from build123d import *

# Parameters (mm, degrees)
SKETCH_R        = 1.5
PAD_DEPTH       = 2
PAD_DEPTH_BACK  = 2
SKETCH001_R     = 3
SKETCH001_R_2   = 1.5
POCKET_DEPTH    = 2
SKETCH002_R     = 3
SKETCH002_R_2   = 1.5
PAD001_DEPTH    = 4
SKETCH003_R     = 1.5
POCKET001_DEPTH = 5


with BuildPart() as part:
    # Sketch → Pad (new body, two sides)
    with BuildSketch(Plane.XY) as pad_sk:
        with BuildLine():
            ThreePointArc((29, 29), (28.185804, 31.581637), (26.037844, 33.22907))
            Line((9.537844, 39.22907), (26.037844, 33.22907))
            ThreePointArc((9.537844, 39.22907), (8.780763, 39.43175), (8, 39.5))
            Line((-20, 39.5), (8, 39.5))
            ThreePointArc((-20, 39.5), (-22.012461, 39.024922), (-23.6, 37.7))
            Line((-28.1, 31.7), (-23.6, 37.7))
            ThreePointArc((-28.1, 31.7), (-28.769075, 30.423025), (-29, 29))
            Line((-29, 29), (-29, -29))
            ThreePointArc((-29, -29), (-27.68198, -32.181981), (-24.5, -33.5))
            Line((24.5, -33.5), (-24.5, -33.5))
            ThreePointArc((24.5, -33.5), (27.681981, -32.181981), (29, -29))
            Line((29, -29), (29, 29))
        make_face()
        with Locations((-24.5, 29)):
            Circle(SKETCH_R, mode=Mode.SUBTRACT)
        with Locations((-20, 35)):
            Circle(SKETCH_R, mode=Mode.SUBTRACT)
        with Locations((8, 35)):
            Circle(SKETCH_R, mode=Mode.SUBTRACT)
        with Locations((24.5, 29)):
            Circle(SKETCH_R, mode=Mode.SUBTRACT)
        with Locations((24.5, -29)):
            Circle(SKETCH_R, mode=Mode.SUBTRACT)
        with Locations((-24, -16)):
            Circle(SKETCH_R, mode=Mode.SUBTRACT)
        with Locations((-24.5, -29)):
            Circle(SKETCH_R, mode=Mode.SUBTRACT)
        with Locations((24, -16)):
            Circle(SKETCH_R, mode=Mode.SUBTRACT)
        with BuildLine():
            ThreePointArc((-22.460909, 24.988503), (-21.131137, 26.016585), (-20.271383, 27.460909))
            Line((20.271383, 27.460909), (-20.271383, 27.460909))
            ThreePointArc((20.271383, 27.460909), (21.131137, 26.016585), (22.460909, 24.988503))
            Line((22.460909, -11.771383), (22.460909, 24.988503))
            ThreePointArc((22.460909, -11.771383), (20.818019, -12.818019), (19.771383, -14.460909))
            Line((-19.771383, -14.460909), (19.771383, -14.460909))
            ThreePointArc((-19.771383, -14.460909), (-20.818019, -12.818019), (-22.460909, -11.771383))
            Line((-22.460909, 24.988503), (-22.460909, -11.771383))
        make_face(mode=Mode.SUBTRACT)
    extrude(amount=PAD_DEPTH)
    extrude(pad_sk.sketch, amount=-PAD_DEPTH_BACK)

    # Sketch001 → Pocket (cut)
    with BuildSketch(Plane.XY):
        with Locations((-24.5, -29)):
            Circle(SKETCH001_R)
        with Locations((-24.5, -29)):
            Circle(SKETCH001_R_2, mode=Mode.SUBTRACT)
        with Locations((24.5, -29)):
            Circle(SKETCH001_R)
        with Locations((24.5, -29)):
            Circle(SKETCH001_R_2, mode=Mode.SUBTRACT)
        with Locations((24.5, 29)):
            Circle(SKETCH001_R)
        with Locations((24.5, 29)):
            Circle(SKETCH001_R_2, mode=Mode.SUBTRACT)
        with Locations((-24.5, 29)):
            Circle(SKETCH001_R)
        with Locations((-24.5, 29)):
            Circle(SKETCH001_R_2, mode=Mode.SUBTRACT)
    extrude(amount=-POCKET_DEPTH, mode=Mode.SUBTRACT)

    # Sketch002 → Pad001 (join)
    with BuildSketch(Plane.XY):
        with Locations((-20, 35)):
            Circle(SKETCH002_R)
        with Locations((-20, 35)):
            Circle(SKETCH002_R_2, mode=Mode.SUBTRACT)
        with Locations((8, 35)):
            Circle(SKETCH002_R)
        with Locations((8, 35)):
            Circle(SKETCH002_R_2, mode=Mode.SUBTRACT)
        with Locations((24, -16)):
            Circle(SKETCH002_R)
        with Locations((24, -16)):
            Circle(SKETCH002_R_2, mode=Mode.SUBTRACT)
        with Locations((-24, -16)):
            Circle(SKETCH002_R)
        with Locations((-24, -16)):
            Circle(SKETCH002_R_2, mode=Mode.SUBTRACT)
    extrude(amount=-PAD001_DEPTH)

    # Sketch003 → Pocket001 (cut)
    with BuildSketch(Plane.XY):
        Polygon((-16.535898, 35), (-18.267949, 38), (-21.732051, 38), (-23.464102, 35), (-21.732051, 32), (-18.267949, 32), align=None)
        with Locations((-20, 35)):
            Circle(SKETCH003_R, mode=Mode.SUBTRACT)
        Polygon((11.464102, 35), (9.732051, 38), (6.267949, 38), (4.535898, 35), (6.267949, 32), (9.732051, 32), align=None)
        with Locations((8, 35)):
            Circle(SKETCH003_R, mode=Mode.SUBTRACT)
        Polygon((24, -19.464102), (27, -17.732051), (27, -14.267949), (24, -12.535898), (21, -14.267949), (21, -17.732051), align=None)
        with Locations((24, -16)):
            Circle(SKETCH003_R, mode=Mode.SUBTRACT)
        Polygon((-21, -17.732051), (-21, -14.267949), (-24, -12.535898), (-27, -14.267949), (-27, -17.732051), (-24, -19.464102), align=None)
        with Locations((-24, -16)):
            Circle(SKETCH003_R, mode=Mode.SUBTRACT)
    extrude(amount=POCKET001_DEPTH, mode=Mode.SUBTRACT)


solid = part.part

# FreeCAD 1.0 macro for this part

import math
import FreeCAD as App
import Part
import Sketcher

V = App.Vector
Q = App.Units.Quantity

doc = App.newDocument("Part")
params = doc.addObject("Spreadsheet::Sheet", "Params")
for row, (alias, value) in enumerate([
    ("sketch1_diameter", "3 mm"),
    ("sketch1_radius", "4.499999 mm"),
    ("sketch1_width", "28 mm"),
    ("sketch1_width2", "49 mm"),
    ("sketch1_height", "58 mm"),
    ("pad1_length", "2 mm"),
    ("pad1_length2", "2 mm"),
    ("sketch2_diameter", "6 mm"),
    ("sketch2_diameter2", "3 mm"),
    ("pocket1_length", "2 mm"),
    ("sketch3_diameter", "6 mm"),
    ("sketch3_diameter2", "3 mm"),
    ("pad2_length", "4 mm"),
    ("sketch4_diameter", "3 mm"),
    ("pocket2_length", "5 mm"),
], start=1):
    params.set(f"A{row}", alias)
    params.set(f"B{row}", "=" + value)
    params.setAlias(f"B{row}", alias)

body = doc.addObject("PartDesign::Body", "Body")

sketch1 = doc.addObject("Sketcher::SketchObject", "Sketch")
body.addObject(sketch1)
sketch1.AttachmentSupport = (doc.XY_Plane, [""])
sketch1.MapMode = "FlatFace"
sketch1.addGeometry([
    Part.ArcOfCircle(Part.Circle(V(24.5, 29, 0), V(0, 0, 1), 4.5), math.radians(0), math.radians(70)),
    Part.LineSegment(V(26, 33.2, 0), V(9.5, 39.2, 0)),
    Part.ArcOfCircle(Part.Circle(V(8, 35, 0), V(0, 0, 1), 4.5), math.radians(70.02), math.radians(90)),
    Part.LineSegment(V(8, 39.5, 0), V(-20, 39.5, 0)),
    Part.ArcOfCircle(Part.Circle(V(-20, 35, 0), V(0, 0, 1), 4.5), math.radians(90), math.radians(143)),
    Part.LineSegment(V(-23.6, 37.7, 0), V(-28.1, 31.7, 0)),
    Part.ArcOfCircle(Part.Circle(V(-24.5, 29, 0), V(0, 0, 1), 4.5), math.radians(143), math.radians(180)),
    Part.LineSegment(V(-29, 29, 0), V(-29, -29, 0)),
    Part.ArcOfCircle(Part.Circle(V(-24.5, -29, 0), V(0, 0, 1), 4.5), math.radians(-180), math.radians(-90)),
    Part.LineSegment(V(-24.5, -33.5, 0), V(24.5, -33.5, 0)),
    Part.ArcOfCircle(Part.Circle(V(24.5, -29, 0), V(0, 0, 1), 4.5), math.radians(-90), math.radians(0)),
    Part.LineSegment(V(29, -29, 0), V(29, 29, 0)),
    Part.Circle(V(-24.5, -29, 0), V(0, 0, 1), 1.5),
    Part.Circle(V(-24, -16, 0), V(0, 0, 1), 1.5),
    Part.Circle(V(24.5, -29, 0), V(0, 0, 1), 1.5),
    Part.Circle(V(24, -16, 0), V(0, 0, 1), 1.5),
    Part.Circle(V(-24.5, 29, 0), V(0, 0, 1), 1.5),
    Part.Circle(V(-20, 35, 0), V(0, 0, 1), 1.5),
    Part.LineSegment(V(-22.5, -11.8, 0), V(-22.5, 25, 0)),
    Part.ArcOfCircle(Part.Circle(V(-24.5, 29, 0), V(0, 0, 1), 4.5), math.radians(-63), math.radians(-20)),
    Part.LineSegment(V(-20.3, 27.5, 0), V(20.3, 27.5, 0)),
    Part.ArcOfCircle(Part.Circle(V(24.5, 29, 0), V(0, 0, 1), 4.5), math.radians(-160), math.radians(-117)),
    Part.LineSegment(V(22.5, 25, 0), V(22.5, -11.8, 0)),
    Part.ArcOfCircle(Part.Circle(V(24, -16, 0), V(0, 0, 1), 4.5), math.radians(110), math.radians(160)),
    Part.LineSegment(V(19.8, -14.5, 0), V(-19.8, -14.5, 0)),
    Part.ArcOfCircle(Part.Circle(V(-24, -16, 0), V(0, 0, 1), 4.5), math.radians(20), math.radians(70)),
    Part.Circle(V(8, 35, 0), V(0, 0, 1), 1.5),
    Part.Circle(V(24.5, 29, 0), V(0, 0, 1), 1.5),
], False)
sketch1.addConstraint([
    Sketcher.Constraint("Tangent", 0, 2, 1, 1),
    Sketcher.Constraint("Tangent", 1, 2, 2, 1),
    Sketcher.Constraint("Tangent", 2, 2, 3, 1),
    Sketcher.Constraint("Tangent", 3, 2, 4, 1),
    Sketcher.Constraint("Tangent", 4, 2, 5, 1),
    Sketcher.Constraint("Tangent", 5, 2, 6, 1),
    Sketcher.Constraint("Tangent", 6, 2, 7, 1),
    Sketcher.Constraint("Tangent", 7, 2, 8, 1),
    Sketcher.Constraint("Tangent", 8, 2, 9, 1),
    Sketcher.Constraint("Tangent", 9, 2, 10, 1),
    Sketcher.Constraint("Tangent", 10, 2, 11, 1),
    Sketcher.Constraint("Tangent", 11, 2, 0, 1),
    Sketcher.Constraint("Coincident", 18, 2, 19, 1),
    Sketcher.Constraint("Coincident", 19, 2, 20, 1),
    Sketcher.Constraint("Coincident", 20, 2, 21, 1),
    Sketcher.Constraint("Coincident", 21, 2, 22, 1),
    Sketcher.Constraint("Coincident", 22, 2, 23, 1),
    Sketcher.Constraint("Coincident", 23, 2, 24, 1),
    Sketcher.Constraint("Coincident", 24, 2, 25, 1),
    Sketcher.Constraint("Coincident", 25, 2, 18, 1),
    Sketcher.Constraint("Horizontal", 3),
    Sketcher.Constraint("Vertical", 7),
    Sketcher.Constraint("Horizontal", 9),
    Sketcher.Constraint("Vertical", 11),
    Sketcher.Constraint("Vertical", 18),
    Sketcher.Constraint("Horizontal", 20),
    Sketcher.Constraint("Vertical", 22),
    Sketcher.Constraint("Horizontal", 24),
    Sketcher.Constraint("Coincident", 12, 3, 8, 3),
    Sketcher.Constraint("Coincident", 14, 3, 10, 3),
    Sketcher.Constraint("Coincident", 16, 3, 6, 3),
    Sketcher.Constraint("Coincident", 17, 3, 4, 3),
    Sketcher.Constraint("Coincident", 19, 3, 6, 3),
    Sketcher.Constraint("Coincident", 21, 3, 0, 3),
    Sketcher.Constraint("Coincident", 23, 3, 15, 3),
    Sketcher.Constraint("Coincident", 25, 3, 13, 3),
    Sketcher.Constraint("Coincident", 26, 3, 2, 3),
    Sketcher.Constraint("Coincident", 27, 3, 0, 3),
    Sketcher.Constraint("Equal", 0, 2),
    Sketcher.Constraint("Equal", 2, 6),
    Sketcher.Constraint("Equal", 0, 8),
    Sketcher.Constraint("Equal", 8, 10),
    Sketcher.Constraint("Equal", 12, 13),
    Sketcher.Constraint("Equal", 13, 14),
    Sketcher.Constraint("Equal", 14, 15),
    Sketcher.Constraint("Equal", 15, 16),
    Sketcher.Constraint("Equal", 16, 17),
    Sketcher.Constraint("Equal", 10, 19),
    Sketcher.Constraint("Equal", 19, 21),
    Sketcher.Constraint("Equal", 21, 23),
    Sketcher.Constraint("Equal", 23, 25),
    Sketcher.Constraint("Equal", 17, 26),
    Sketcher.Constraint("Equal", 26, 27),
    Sketcher.Constraint("Symmetric", 0, 3, 8, 3, -1, 1),
    Sketcher.Constraint("Symmetric", 13, 3, 15, 3, -2),
    Sketcher.Constraint("Symmetric", 18, 2, 21, 2, -2),
    Sketcher.Constraint("Horizontal", 17, 3, 26, 3),
    Sketcher.Constraint("Diameter", 12, 3.0),
    Sketcher.Constraint("Radius", 0, 4.499999),
    Sketcher.Constraint("DistanceX", 3, 2, 3, 1, 28.0),
    Sketcher.Constraint("DistanceX", 9, 1, 9, 2, 49.0),
    Sketcher.Constraint("DistanceY", 7, 2, 7, 1, 58.0),
    Sketcher.Constraint("DistanceX", -1, 1, 2, 3, 8.0),
    Sketcher.Constraint("DistanceX", 13, 3, -1, 1, 24.0),
    Sketcher.Constraint("DistanceY", 13, 3, -1, 1, 16.0),
    Sketcher.Constraint("DistanceY", -1, 1, 17, 3, 35.0),
    Sketcher.Constraint("DistanceY", 18, 2, 6, 3, 4.011498),
    Sketcher.Constraint("DistanceX", 20, 1, 20, 2, 40.542766),
    Sketcher.Constraint("DistanceX", 24, 2, 24, 1, 39.542766),
])
sketch1.setExpression("Constraints[57]", "Params.sketch1_diameter")
sketch1.setExpression("Constraints[58]", "Params.sketch1_radius")
sketch1.setExpression("Constraints[59]", "Params.sketch1_width")
sketch1.setExpression("Constraints[60]", "Params.sketch1_width2")
sketch1.setExpression("Constraints[61]", "Params.sketch1_height")
pad1 = doc.addObject("PartDesign::Pad", "Pad")
body.addObject(pad1)
pad1.Profile = sketch1
pad1.Type = "TwoLengths"
pad1.setExpression("Length", "Params.pad1_length")
pad1.setExpression("Length2", "Params.pad1_length2")

sketch2 = doc.addObject("Sketcher::SketchObject", "Sketch001")
body.addObject(sketch2)
sketch2.AttachmentSupport = (doc.XY_Plane, [""])
sketch2.MapMode = "FlatFace"
sketch2.addGeometry([
    Part.Circle(V(-24.5, -29, 0), V(0, 0, 1), 3),
    Part.Circle(V(-24.5, -29, 0), V(0, 0, 1), 1.5),
    Part.Circle(V(24.5, -29, 0), V(0, 0, 1), 3),
    Part.Circle(V(24.5, -29, 0), V(0, 0, 1), 1.5),
    Part.Circle(V(24.5, 29, 0), V(0, 0, 1), 3),
    Part.Circle(V(24.5, 29, 0), V(0, 0, 1), 1.5),
    Part.Circle(V(-24.5, 29, 0), V(0, 0, 1), 3),
    Part.Circle(V(-24.5, 29, 0), V(0, 0, 1), 1.5),
], False)
sketch2.addConstraint([
    Sketcher.Constraint("Coincident", 1, 3, 0, 3),
    Sketcher.Constraint("Coincident", 3, 3, 2, 3),
    Sketcher.Constraint("Coincident", 5, 3, 4, 3),
    Sketcher.Constraint("Coincident", 7, 3, 6, 3),
    Sketcher.Constraint("Equal", 0, 2),
    Sketcher.Constraint("Equal", 1, 3),
    Sketcher.Constraint("Equal", 2, 4),
    Sketcher.Constraint("Equal", 3, 5),
    Sketcher.Constraint("Equal", 4, 6),
    Sketcher.Constraint("Equal", 5, 7),
    Sketcher.Constraint("Symmetric", 0, 3, 4, 3, -1, 1),
    Sketcher.Constraint("Symmetric", 2, 3, 6, 3, -1, 1),
    Sketcher.Constraint("Symmetric", 0, 3, 2, 3, -2),
    Sketcher.Constraint("Diameter", 0, 6.0),
    Sketcher.Constraint("Diameter", 1, 3.0),
    Sketcher.Constraint("DistanceY", 0, 3, -1, 1, 29.0),
    Sketcher.Constraint("DistanceX", 0, 3, 2, 3, 49.0),
])
sketch2.setExpression("Constraints[13]", "Params.sketch2_diameter")
sketch2.setExpression("Constraints[14]", "Params.sketch2_diameter2")
pocket1 = doc.addObject("PartDesign::Pocket", "Pocket")
body.addObject(pocket1)
pocket1.Profile = sketch2
pocket1.setExpression("Length", "Params.pocket1_length")

sketch3 = doc.addObject("Sketcher::SketchObject", "Sketch002")
body.addObject(sketch3)
sketch3.AttachmentSupport = (doc.XY_Plane, [""])
sketch3.MapMode = "FlatFace"
sketch3.addGeometry([
    Part.Circle(V(-20, 35, 0), V(0, 0, 1), 3),
    Part.Circle(V(-20, 35, 0), V(0, 0, 1), 1.5),
    Part.Circle(V(8, 35, 0), V(0, 0, 1), 3),
    Part.Circle(V(8, 35, 0), V(0, 0, 1), 1.5),
    Part.Circle(V(24, -16, 0), V(0, 0, 1), 3),
    Part.Circle(V(24, -16, 0), V(0, 0, 1), 1.5),
    Part.Circle(V(-24, -16, 0), V(0, 0, 1), 3),
    Part.Circle(V(-24, -16, 0), V(0, 0, 1), 1.5),
], False)
sketch3.addConstraint([
    Sketcher.Constraint("Coincident", 1, 3, 0, 3),
    Sketcher.Constraint("Coincident", 3, 3, 2, 3),
    Sketcher.Constraint("Coincident", 5, 3, 4, 3),
    Sketcher.Constraint("Coincident", 7, 3, 6, 3),
    Sketcher.Constraint("Equal", 0, 2),
    Sketcher.Constraint("Equal", 1, 3),
    Sketcher.Constraint("Equal", 2, 4),
    Sketcher.Constraint("Equal", 3, 5),
    Sketcher.Constraint("Equal", 4, 6),
    Sketcher.Constraint("Equal", 5, 7),
    Sketcher.Constraint("Symmetric", 4, 3, 6, 3, -2),
    Sketcher.Constraint("Horizontal", 1, 3, 2, 3),
    Sketcher.Constraint("Diameter", 0, 6.0),
    Sketcher.Constraint("Diameter", 1, 3.0),
    Sketcher.Constraint("DistanceX", 0, 3, -1, 1, 20.0),
    Sketcher.Constraint("DistanceY", -1, 1, 0, 3, 35.0),
    Sketcher.Constraint("DistanceX", -1, 1, 2, 3, 8.0),
    Sketcher.Constraint("DistanceX", -1, 1, 4, 3, 24.0),
    Sketcher.Constraint("DistanceY", 4, 3, -1, 1, 16.0),
])
sketch3.setExpression("Constraints[12]", "Params.sketch3_diameter")
sketch3.setExpression("Constraints[13]", "Params.sketch3_diameter2")
pad2 = doc.addObject("PartDesign::Pad", "Pad001")
body.addObject(pad2)
pad2.Profile = sketch3
pad2.setExpression("Length", "Params.pad2_length")
pad2.Reversed = True

sketch4 = doc.addObject("Sketcher::SketchObject", "Sketch003")
body.addObject(sketch4)
sketch4.AttachmentSupport = (doc.XY_Plane, [""])
sketch4.MapMode = "FlatFace"
sketch4.addGeometry([
    Part.LineSegment(V(-16.5, 35, 0), V(-18.3, 38, 0)),
    Part.LineSegment(V(-18.3, 38, 0), V(-21.7, 38, 0)),
    Part.LineSegment(V(-21.7, 38, 0), V(-23.5, 35, 0)),
    Part.LineSegment(V(-23.5, 35, 0), V(-21.7, 32, 0)),
    Part.LineSegment(V(-21.7, 32, 0), V(-18.3, 32, 0)),
    Part.LineSegment(V(-18.3, 32, 0), V(-16.5, 35, 0)),
    Part.Circle(V(-20, 35, 0), V(0, 0, 1), 1.5),
    Part.LineSegment(V(11.5, 35, 0), V(9.7, 38, 0)),
    Part.LineSegment(V(9.7, 38, 0), V(6.3, 38, 0)),
    Part.LineSegment(V(6.3, 38, 0), V(4.5, 35, 0)),
    Part.LineSegment(V(4.5, 35, 0), V(6.3, 32, 0)),
    Part.LineSegment(V(6.3, 32, 0), V(9.7, 32, 0)),
    Part.LineSegment(V(9.7, 32, 0), V(11.5, 35, 0)),
    Part.Circle(V(8, 35, 0), V(0, 0, 1), 1.5),
    Part.LineSegment(V(24, -19.5, 0), V(27, -17.7, 0)),
    Part.LineSegment(V(27, -17.7, 0), V(27, -14.3, 0)),
    Part.LineSegment(V(27, -14.3, 0), V(24, -12.5, 0)),
    Part.LineSegment(V(24, -12.5, 0), V(21, -14.3, 0)),
    Part.LineSegment(V(21, -14.3, 0), V(21, -17.7, 0)),
    Part.LineSegment(V(21, -17.7, 0), V(24, -19.5, 0)),
    Part.Circle(V(24, -16, 0), V(0, 0, 1), 1.5),
    Part.LineSegment(V(-21, -17.7, 0), V(-21, -14.3, 0)),
    Part.LineSegment(V(-21, -14.3, 0), V(-24, -12.5, 0)),
    Part.LineSegment(V(-24, -12.5, 0), V(-27, -14.3, 0)),
    Part.LineSegment(V(-27, -14.3, 0), V(-27, -17.7, 0)),
    Part.LineSegment(V(-27, -17.7, 0), V(-24, -19.5, 0)),
    Part.LineSegment(V(-24, -19.5, 0), V(-21, -17.7, 0)),
    Part.Circle(V(-24, -16, 0), V(0, 0, 1), 1.5),
], False)
sketch4.addConstraint([
    Sketcher.Constraint("Coincident", 0, 2, 1, 1),
    Sketcher.Constraint("Coincident", 1, 2, 2, 1),
    Sketcher.Constraint("Coincident", 2, 2, 3, 1),
    Sketcher.Constraint("Coincident", 3, 2, 4, 1),
    Sketcher.Constraint("Coincident", 4, 2, 5, 1),
    Sketcher.Constraint("Coincident", 5, 2, 0, 1),
    Sketcher.Constraint("Coincident", 7, 2, 8, 1),
    Sketcher.Constraint("Coincident", 8, 2, 9, 1),
    Sketcher.Constraint("Coincident", 9, 2, 10, 1),
    Sketcher.Constraint("Coincident", 10, 2, 11, 1),
    Sketcher.Constraint("Coincident", 11, 2, 12, 1),
    Sketcher.Constraint("Coincident", 12, 2, 7, 1),
    Sketcher.Constraint("Coincident", 14, 2, 15, 1),
    Sketcher.Constraint("Coincident", 15, 2, 16, 1),
    Sketcher.Constraint("Coincident", 16, 2, 17, 1),
    Sketcher.Constraint("Coincident", 17, 2, 18, 1),
    Sketcher.Constraint("Coincident", 18, 2, 19, 1),
    Sketcher.Constraint("Coincident", 19, 2, 14, 1),
    Sketcher.Constraint("Coincident", 21, 2, 22, 1),
    Sketcher.Constraint("Coincident", 22, 2, 23, 1),
    Sketcher.Constraint("Coincident", 23, 2, 24, 1),
    Sketcher.Constraint("Coincident", 24, 2, 25, 1),
    Sketcher.Constraint("Coincident", 25, 2, 26, 1),
    Sketcher.Constraint("Coincident", 26, 2, 21, 1),
    Sketcher.Constraint("Horizontal", 1),
    Sketcher.Constraint("Horizontal", 4),
    Sketcher.Constraint("Horizontal", 8),
    Sketcher.Constraint("Horizontal", 11),
    Sketcher.Constraint("Vertical", 15),
    Sketcher.Constraint("Vertical", 18),
    Sketcher.Constraint("Vertical", 21),
    Sketcher.Constraint("Vertical", 24),
    Sketcher.Constraint("Equal", 6, 13),
    Sketcher.Constraint("Equal", 13, 20),
    Sketcher.Constraint("Equal", 20, 27),
    Sketcher.Constraint("Symmetric", 20, 3, 27, 3, -2),
    Sketcher.Constraint("Symmetric", 17, 2, 21, 2, -2),
    Sketcher.Constraint("Symmetric", 16, 2, 22, 2, -2),
    Sketcher.Constraint("Symmetric", 15, 2, 23, 2, -2),
    Sketcher.Constraint("Symmetric", 19, 2, 25, 2, -2),
    Sketcher.Constraint("Parallel", 0, 3),
    Sketcher.Constraint("Parallel", 2, 5),
    Sketcher.Constraint("Parallel", 3, 7),
    Sketcher.Constraint("Parallel", 5, 9),
    Sketcher.Constraint("Parallel", 7, 10),
    Sketcher.Constraint("Parallel", 9, 12),
    Sketcher.Constraint("Perpendicular", 10, 14),
    Sketcher.Constraint("Perpendicular", 12, 16),
    Sketcher.Constraint("Parallel", 14, 17),
    Sketcher.Constraint("Parallel", 16, 19),
    Sketcher.Constraint("Parallel", 19, 22),
    Sketcher.Constraint("Parallel", 22, 25),
    Sketcher.Constraint("Parallel", 23, 26),
    Sketcher.Constraint("Horizontal", 6, 3, 13, 3),
    Sketcher.Constraint("Horizontal", 13, 3, 2, 2),
    Sketcher.Constraint("Horizontal", 2, 2, 5, 2),
    Sketcher.Constraint("Horizontal", 1, 2, 7, 2),
    Sketcher.Constraint("Horizontal", 5, 2, 9, 2),
    Sketcher.Constraint("Horizontal", 4, 2, 10, 2),
    Sketcher.Constraint("Horizontal", 9, 2, 12, 2),
    Sketcher.Constraint("Horizontal", 15, 2, 17, 2),
    Sketcher.Constraint("Horizontal", 14, 2, 18, 2),
    Sketcher.Constraint("Vertical", 1, 2, 3, 2),
    Sketcher.Constraint("Vertical", 20, 3, 16, 2),
    Sketcher.Constraint("Equal", 4, 8),
    Sketcher.Constraint("Equal", 11, 15),
    Sketcher.Constraint("Equal", 12, 14),
    Sketcher.Constraint("Diameter", 6, 3.0),
    Sketcher.Constraint("Angle", 0, Q("120.000003 deg")),
    Sketcher.Constraint("DistanceX", 6, 3, -1, 1, 20.0),
    Sketcher.Constraint("DistanceY", -1, 1, 6, 3, 35.0),
    Sketcher.Constraint("DistanceX", -1, 1, 13, 3, 8.0),
    Sketcher.Constraint("DistanceX", -1, 1, 20, 3, 24.0),
    Sketcher.Constraint("DistanceY", 20, 3, -1, 1, 16.0),
    Sketcher.Constraint("DistanceY", -1, 1, 0, 2, 38.0),
    Sketcher.Constraint("DistanceX", 0, 2, 7, 2, 28.0),
    Sketcher.Constraint("DistanceX", 1, 2, 1, 1, 3.464102),
    Sketcher.Constraint("DistanceX", -1, 1, 9, 2, 4.535898),
    Sketcher.Constraint("DistanceY", 16, 2, 11, 2, 44.535898),
])
sketch4.setExpression("Constraints[67]", "Params.sketch4_diameter")
pocket2 = doc.addObject("PartDesign::Pocket", "Pocket001")
body.addObject(pocket2)
pocket2.Profile = sketch4
pocket2.setExpression("Length", "Params.pocket2_length")
pocket2.Reversed = True

doc.recompute()
